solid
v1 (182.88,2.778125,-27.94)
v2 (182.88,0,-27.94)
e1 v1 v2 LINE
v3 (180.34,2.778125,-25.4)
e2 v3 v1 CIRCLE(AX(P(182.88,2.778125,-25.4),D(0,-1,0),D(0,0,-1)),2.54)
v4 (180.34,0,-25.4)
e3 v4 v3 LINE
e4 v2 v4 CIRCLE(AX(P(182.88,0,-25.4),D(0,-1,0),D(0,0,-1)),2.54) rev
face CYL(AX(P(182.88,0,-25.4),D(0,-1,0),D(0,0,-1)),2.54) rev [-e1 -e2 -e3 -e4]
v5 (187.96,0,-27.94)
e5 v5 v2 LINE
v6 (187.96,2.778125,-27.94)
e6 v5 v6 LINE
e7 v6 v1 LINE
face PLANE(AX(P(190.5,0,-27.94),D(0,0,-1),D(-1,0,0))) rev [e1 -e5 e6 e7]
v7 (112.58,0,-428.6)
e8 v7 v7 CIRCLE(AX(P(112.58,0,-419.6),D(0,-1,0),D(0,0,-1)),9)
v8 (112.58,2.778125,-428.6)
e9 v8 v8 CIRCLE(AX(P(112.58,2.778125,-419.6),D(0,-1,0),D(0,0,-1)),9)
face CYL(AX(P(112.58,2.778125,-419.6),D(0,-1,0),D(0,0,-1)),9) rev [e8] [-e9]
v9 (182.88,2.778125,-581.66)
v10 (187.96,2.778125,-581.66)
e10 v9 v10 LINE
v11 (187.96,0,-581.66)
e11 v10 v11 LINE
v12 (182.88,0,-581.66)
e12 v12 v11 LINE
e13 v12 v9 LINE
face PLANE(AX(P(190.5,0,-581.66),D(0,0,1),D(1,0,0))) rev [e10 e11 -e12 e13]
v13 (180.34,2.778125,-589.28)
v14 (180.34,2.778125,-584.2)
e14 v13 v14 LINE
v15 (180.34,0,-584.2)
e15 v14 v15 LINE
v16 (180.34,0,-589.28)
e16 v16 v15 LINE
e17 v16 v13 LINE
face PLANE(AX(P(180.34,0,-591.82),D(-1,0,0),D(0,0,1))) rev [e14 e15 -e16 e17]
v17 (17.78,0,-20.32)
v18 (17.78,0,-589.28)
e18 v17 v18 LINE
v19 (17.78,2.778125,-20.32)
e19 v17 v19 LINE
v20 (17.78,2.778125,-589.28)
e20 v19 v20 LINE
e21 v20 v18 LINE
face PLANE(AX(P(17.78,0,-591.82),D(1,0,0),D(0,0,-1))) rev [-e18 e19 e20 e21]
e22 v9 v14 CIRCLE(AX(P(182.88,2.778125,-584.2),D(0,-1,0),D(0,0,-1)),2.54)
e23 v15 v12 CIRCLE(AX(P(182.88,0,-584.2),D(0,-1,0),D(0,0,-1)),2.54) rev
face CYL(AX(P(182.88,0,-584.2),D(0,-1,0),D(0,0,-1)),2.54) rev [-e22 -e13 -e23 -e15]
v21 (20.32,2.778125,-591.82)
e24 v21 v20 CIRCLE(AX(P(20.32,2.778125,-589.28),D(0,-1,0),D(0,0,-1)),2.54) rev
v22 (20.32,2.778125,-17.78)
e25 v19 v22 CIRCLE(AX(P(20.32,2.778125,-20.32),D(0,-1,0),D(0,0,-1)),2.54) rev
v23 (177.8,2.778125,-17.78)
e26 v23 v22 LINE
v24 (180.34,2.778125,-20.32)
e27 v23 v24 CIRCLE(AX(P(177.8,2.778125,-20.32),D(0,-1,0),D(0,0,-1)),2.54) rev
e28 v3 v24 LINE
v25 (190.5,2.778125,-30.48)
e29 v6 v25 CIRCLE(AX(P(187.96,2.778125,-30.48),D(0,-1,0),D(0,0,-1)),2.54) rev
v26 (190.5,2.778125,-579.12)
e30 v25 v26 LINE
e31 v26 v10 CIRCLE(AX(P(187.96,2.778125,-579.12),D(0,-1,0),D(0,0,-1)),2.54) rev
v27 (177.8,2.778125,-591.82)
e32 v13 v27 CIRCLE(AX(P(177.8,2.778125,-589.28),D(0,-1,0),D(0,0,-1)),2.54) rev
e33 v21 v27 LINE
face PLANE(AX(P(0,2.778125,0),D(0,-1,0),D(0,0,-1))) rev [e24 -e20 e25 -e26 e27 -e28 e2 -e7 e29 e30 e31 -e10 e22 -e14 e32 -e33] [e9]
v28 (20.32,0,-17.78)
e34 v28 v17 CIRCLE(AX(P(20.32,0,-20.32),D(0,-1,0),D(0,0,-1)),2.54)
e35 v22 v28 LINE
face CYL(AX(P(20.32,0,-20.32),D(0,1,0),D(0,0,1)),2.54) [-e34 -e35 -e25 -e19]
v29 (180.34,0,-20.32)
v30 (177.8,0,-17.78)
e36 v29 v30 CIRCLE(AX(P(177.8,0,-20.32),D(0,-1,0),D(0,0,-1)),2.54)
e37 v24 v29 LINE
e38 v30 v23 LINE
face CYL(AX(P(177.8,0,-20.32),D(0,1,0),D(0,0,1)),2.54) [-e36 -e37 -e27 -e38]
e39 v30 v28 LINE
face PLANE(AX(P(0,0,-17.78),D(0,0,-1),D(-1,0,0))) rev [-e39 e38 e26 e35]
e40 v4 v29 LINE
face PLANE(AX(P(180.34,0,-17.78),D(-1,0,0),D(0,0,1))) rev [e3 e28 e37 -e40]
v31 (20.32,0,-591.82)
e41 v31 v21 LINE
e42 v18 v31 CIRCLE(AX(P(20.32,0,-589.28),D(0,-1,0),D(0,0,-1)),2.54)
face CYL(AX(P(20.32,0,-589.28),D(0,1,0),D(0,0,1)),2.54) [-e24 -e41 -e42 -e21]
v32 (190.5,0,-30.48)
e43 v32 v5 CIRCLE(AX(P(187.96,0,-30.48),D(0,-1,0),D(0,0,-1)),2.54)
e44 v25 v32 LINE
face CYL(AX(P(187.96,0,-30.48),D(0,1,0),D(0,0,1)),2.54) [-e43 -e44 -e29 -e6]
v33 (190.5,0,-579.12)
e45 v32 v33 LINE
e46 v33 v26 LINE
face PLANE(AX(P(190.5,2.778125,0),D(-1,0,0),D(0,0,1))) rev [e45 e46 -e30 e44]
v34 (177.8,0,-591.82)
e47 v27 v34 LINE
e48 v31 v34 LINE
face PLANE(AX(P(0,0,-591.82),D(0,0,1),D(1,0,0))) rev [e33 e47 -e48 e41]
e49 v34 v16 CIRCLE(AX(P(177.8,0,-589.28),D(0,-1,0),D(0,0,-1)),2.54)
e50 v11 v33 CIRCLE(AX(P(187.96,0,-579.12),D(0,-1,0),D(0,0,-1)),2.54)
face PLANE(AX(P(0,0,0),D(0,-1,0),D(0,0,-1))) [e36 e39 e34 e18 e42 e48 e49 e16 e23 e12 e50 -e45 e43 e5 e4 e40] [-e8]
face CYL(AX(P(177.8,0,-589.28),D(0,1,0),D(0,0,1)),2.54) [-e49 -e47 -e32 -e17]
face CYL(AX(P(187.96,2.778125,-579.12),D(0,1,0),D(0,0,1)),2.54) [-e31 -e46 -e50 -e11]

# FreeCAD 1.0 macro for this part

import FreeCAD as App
import Part
import Sketcher
Q = App.Units.Quantity


def edges_at(feature, points):
    """Names of the edges that pass closest to the given points."""
    edges = feature.Shape.Edges
    near = lambda p: min(range(len(edges)), key=lambda i: edges[i].distToShape(Part.Vertex(*p))[0])
    return sorted({f"Edge{near(p) + 1}" for p in points})

doc = App.newDocument("Part")
params = doc.addObject("Spreadsheet::Sheet", "Params")
for row, (alias, value) in enumerate([
    ("sketch1_height", "24 in"),
    ("sketch1_width", "7.5 in"),
    ("pad1_length", "0.109375 in"),
    ("sketch2_width", "7.5 in"),
    ("sketch2_height", "0.7 in"),
    ("sketch3_width", "0.7 in"),
    ("sketch3_height", "22.6 in"),
    ("sketch4_width", "0.4 in"),
    ("fillet_radius", "0.1 in"),
], start=1):
    params.set(f"A{row}", alias)
    params.set(f"B{row}", "=" + value)
    params.setAlias(f"B{row}", alias)

body = doc.addObject("PartDesign::Body", "Body")

sketch1 = body.newObject("Sketcher::SketchObject", "Sketch")
sketch1.AttachmentSupport = (doc.getObject("XZ_Plane"), [""])
sketch1.MapMode = "FlatFace"
sketch1.addGeometry([
    Part.LineSegment(App.Vector(0, -610, 0), App.Vector(0, 0, 0)),
    Part.LineSegment(App.Vector(0, 0, 0), App.Vector(190, 0, 0)),
    Part.LineSegment(App.Vector(190, 0, 0), App.Vector(190, -610, 0)),
    Part.LineSegment(App.Vector(190, -610, 0), App.Vector(0, -610, 0)),
], False)
sketch1.addConstraint([
    Sketcher.Constraint("Coincident", 0, 2, 1, 1),
    Sketcher.Constraint("Coincident", 1, 2, 2, 1),
    Sketcher.Constraint("Coincident", 2, 2, 3, 1),
    Sketcher.Constraint("Coincident", 3, 2, 0, 1),
    Sketcher.Constraint("Vertical", 0),
    Sketcher.Constraint("Horizontal", 1),
    Sketcher.Constraint("Vertical", 2),
    Sketcher.Constraint("Horizontal", 3),
    Sketcher.Constraint("Coincident", 0, 2, -1, 1),
    Sketcher.Constraint("DistanceY", 0, 1, 0, 2, Q("24 in")),
    Sketcher.Constraint("DistanceX", 1, 1, 1, 2, Q("7.5 in")),
])
sketch1.setExpression("Constraints[9]", "Params.sketch1_height")
sketch1.setExpression("Constraints[10]", "Params.sketch1_width")
pad1 = body.newObject("PartDesign::Pad", "Pad")
pad1.Profile = sketch1
pad1.setExpression("Length", "Params.pad1_length")
pad1.Reversed = True

sketch2 = body.newObject("Sketcher::SketchObject", "Sketch001")
sketch2.AttachmentSupport = (doc.getObject("XZ_Plane"), [""])
sketch2.MapMode = "FlatFace"
sketch2.AttachmentOffset = App.Placement(App.Vector(0, 0, -0.109375 * 25.4), App.Rotation())
sketch2.addGeometry([
    Part.LineSegment(App.Vector(0, -18, 0), App.Vector(0, 0, 0)),
    Part.LineSegment(App.Vector(0, 0, 0), App.Vector(190, 0, 0)),
    Part.LineSegment(App.Vector(190, 0, 0), App.Vector(190, -18, 0)),
    Part.LineSegment(App.Vector(190, -18, 0), App.Vector(0, -18, 0)),
    Part.LineSegment(App.Vector(0, -610, 0), App.Vector(0, -592, 0)),
    Part.LineSegment(App.Vector(0, -592, 0), App.Vector(190, -592, 0)),
    Part.LineSegment(App.Vector(190, -592, 0), App.Vector(190, -610, 0)),
    Part.LineSegment(App.Vector(190, -610, 0), App.Vector(0, -610, 0)),
], False)
sketch2.addConstraint([
    Sketcher.Constraint("Coincident", 0, 2, 1, 1),
    Sketcher.Constraint("Coincident", 1, 2, 2, 1),
    Sketcher.Constraint("Coincident", 2, 2, 3, 1),
    Sketcher.Constraint("Coincident", 3, 2, 0, 1),
    Sketcher.Constraint("Coincident", 4, 2, 5, 1),
    Sketcher.Constraint("Coincident", 5, 2, 6, 1),
    Sketcher.Constraint("Coincident", 6, 2, 7, 1),
    Sketcher.Constraint("Coincident", 7, 2, 4, 1),
    Sketcher.Constraint("Vertical", 0),
    Sketcher.Constraint("Horizontal", 1),
    Sketcher.Constraint("Vertical", 2),
    Sketcher.Constraint("Horizontal", 3),
    Sketcher.Constraint("Vertical", 4),
    Sketcher.Constraint("Horizontal", 5),
    Sketcher.Constraint("Vertical", 6),
    Sketcher.Constraint("Horizontal", 7),
    Sketcher.Constraint("Coincident", 0, 2, -1, 1),
    Sketcher.Constraint("PointOnObject", 4, 2, -2),
    Sketcher.Constraint("Vertical", 2, 2, 5, 2),
    Sketcher.Constraint("Equal", 2, 4),
    Sketcher.Constraint("DistanceX", 1, 1, 1, 2, Q("7.5 in")),
    Sketcher.Constraint("DistanceY", 0, 1, 0, 2, Q("0.7 in")),
    Sketcher.Constraint("DistanceY", 6, 2, -1, 1, Q("24 in")),
])
sketch2.setExpression("Constraints[20]", "Params.sketch2_width")
sketch2.setExpression("Constraints[21]", "Params.sketch2_height")
pocket1 = body.newObject("PartDesign::Pocket", "Pocket")
pocket1.Profile = sketch2
pocket1.Type = "ThroughAll"
pocket1.Reversed = True

sketch3 = body.newObject("Sketcher::SketchObject", "Sketch002")
sketch3.AttachmentSupport = (doc.getObject("XZ_Plane"), [""])
sketch3.MapMode = "FlatFace"
sketch3.AttachmentOffset = App.Placement(App.Vector(0, 0, -0.109375 * 25.4), App.Rotation())
sketch3.addGeometry([
    Part.LineSegment(App.Vector(0, -592, 0), App.Vector(0, -18, 0)),
    Part.LineSegment(App.Vector(0, -18, 0), App.Vector(18, -18, 0)),
    Part.LineSegment(App.Vector(18, -18, 0), App.Vector(18, -592, 0)),
    Part.LineSegment(App.Vector(18, -592, 0), App.Vector(0, -592, 0)),
], False)
sketch3.addConstraint([
    Sketcher.Constraint("Coincident", 0, 2, 1, 1),
    Sketcher.Constraint("Coincident", 1, 2, 2, 1),
    Sketcher.Constraint("Coincident", 2, 2, 3, 1),
    Sketcher.Constraint("Coincident", 3, 2, 0, 1),
    Sketcher.Constraint("Vertical", 0),
    Sketcher.Constraint("Horizontal", 1),
    Sketcher.Constraint("Vertical", 2),
    Sketcher.Constraint("Horizontal", 3),
    Sketcher.Constraint("PointOnObject", 0, 2, -2),
    Sketcher.Constraint("DistanceX", 1, 1, 1, 2, Q("0.7 in")),
    Sketcher.Constraint("DistanceY", 0, 1, 0, 2, Q("22.6 in")),
    Sketcher.Constraint("DistanceY", 0, 2, -1, 1, Q("0.7 in")),
])
sketch3.setExpression("Constraints[9]", "Params.sketch3_width")
sketch3.setExpression("Constraints[10]", "Params.sketch3_height")
pocket2 = body.newObject("PartDesign::Pocket", "Pocket001")
pocket2.Profile = sketch3
pocket2.Type = "ThroughAll"
pocket2.Reversed = True

sketch4 = body.newObject("Sketcher::SketchObject", "Sketch003")
sketch4.AttachmentSupport = (doc.getObject("XZ_Plane"), [""])
sketch4.MapMode = "FlatFace"
sketch4.AttachmentOffset = App.Placement(App.Vector(0, 0, -0.109375 * 25.4), App.Rotation())
sketch4.addGeometry([
    Part.LineSegment(App.Vector(180, -592, 0), App.Vector(180, -582, 0)),
    Part.LineSegment(App.Vector(180, -582, 0), App.Vector(190, -582, 0)),
    Part.LineSegment(App.Vector(190, -582, 0), App.Vector(190, -592, 0)),
    Part.LineSegment(App.Vector(190, -592, 0), App.Vector(180, -592, 0)),
    Part.LineSegment(App.Vector(180, -28, 0), App.Vector(180, -18, 0)),
    Part.LineSegment(App.Vector(180, -18, 0), App.Vector(190, -18, 0)),
    Part.LineSegment(App.Vector(190, -18, 0), App.Vector(190, -28, 0)),
    Part.LineSegment(App.Vector(190, -28, 0), App.Vector(180, -28, 0)),
], False)
sketch4.addConstraint([
    Sketcher.Constraint("Coincident", 0, 2, 1, 1),
    Sketcher.Constraint("Coincident", 1, 2, 2, 1),
    Sketcher.Constraint("Coincident", 2, 2, 3, 1),
    Sketcher.Constraint("Coincident", 3, 2, 0, 1),
    Sketcher.Constraint("Coincident", 4, 2, 5, 1),
    Sketcher.Constraint("Coincident", 5, 2, 6, 1),
    Sketcher.Constraint("Coincident", 6, 2, 7, 1),
    Sketcher.Constraint("Coincident", 7, 2, 4, 1),
    Sketcher.Constraint("Vertical", 0),
    Sketcher.Constraint("Horizontal", 1),
    Sketcher.Constraint("Vertical", 2),
    Sketcher.Constraint("Horizontal", 3),
    Sketcher.Constraint("Vertical", 4),
    Sketcher.Constraint("Horizontal", 5),
    Sketcher.Constraint("Vertical", 6),
    Sketcher.Constraint("Horizontal", 7),
    Sketcher.Constraint("Vertical", 3, 2, 4, 2),
    Sketcher.Constraint("Vertical", 2, 2, 5, 2),
    Sketcher.Constraint("Equal", 7, 0),
    Sketcher.Constraint("Equal", 2, 4),
    Sketcher.Constraint("DistanceX", 1, 1, 1, 2, Q("0.4 in")),
    Sketcher.Constraint("DistanceX", -1, 1, 0, 2, Q("7.1 in")),
    Sketcher.Constraint("DistanceY", 0, 2, -1, 1, Q("22.9 in")),
    Sketcher.Constraint("DistanceY", 4, 2, -1, 1, Q("0.7 in")),
])
sketch4.setExpression("Constraints[20]", "Params.sketch4_width")
pocket3 = body.newObject("PartDesign::Pocket", "Pocket002")
pocket3.Profile = sketch4
pocket3.Type = "ThroughAll"
pocket3.Reversed = True
doc.recompute()

fillet = body.newObject("PartDesign::Fillet", "Fillet")
fillet.Base = (pocket3, edges_at(pocket3, [
    (17.78, 1.389, -591.82),
    (17.78, 1.389, -17.78),
    (190.5, 1.389, -581.66),
    (180.34, 1.389, -581.66),
    (180.34, 1.389, -591.82),
    (190.5, 1.389, -27.94),
    (180.34, 1.389, -17.78),
    (180.34, 1.389, -27.94),
]))
fillet.setExpression("Radius", "Params.fillet_radius")

sketch5 = body.newObject("Sketcher::SketchObject", "Sketch004")
sketch5.AttachmentSupport = (doc.getObject("XZ_Plane"), [""])
sketch5.MapMode = "FlatFace"
sketch5.addGeometry(Part.Circle(App.Vector(113, -420, 0), App.Vector(0, 0, 1), 9), False)
sketch5.addConstraint([
    Sketcher.Constraint("Diameter", 0, Q("18 mm")),
    Sketcher.Constraint("DistanceX", -1, 1, 0, 3, Q("112.58 mm")),
    Sketcher.Constraint("DistanceY", 0, 3, -1, 1, Q("419.6 mm")),
])
pocket4 = body.newObject("PartDesign::Pocket", "Pocket003")
pocket4.Profile = sketch5
pocket4.Type = "ThroughAll"

doc.recompute()
